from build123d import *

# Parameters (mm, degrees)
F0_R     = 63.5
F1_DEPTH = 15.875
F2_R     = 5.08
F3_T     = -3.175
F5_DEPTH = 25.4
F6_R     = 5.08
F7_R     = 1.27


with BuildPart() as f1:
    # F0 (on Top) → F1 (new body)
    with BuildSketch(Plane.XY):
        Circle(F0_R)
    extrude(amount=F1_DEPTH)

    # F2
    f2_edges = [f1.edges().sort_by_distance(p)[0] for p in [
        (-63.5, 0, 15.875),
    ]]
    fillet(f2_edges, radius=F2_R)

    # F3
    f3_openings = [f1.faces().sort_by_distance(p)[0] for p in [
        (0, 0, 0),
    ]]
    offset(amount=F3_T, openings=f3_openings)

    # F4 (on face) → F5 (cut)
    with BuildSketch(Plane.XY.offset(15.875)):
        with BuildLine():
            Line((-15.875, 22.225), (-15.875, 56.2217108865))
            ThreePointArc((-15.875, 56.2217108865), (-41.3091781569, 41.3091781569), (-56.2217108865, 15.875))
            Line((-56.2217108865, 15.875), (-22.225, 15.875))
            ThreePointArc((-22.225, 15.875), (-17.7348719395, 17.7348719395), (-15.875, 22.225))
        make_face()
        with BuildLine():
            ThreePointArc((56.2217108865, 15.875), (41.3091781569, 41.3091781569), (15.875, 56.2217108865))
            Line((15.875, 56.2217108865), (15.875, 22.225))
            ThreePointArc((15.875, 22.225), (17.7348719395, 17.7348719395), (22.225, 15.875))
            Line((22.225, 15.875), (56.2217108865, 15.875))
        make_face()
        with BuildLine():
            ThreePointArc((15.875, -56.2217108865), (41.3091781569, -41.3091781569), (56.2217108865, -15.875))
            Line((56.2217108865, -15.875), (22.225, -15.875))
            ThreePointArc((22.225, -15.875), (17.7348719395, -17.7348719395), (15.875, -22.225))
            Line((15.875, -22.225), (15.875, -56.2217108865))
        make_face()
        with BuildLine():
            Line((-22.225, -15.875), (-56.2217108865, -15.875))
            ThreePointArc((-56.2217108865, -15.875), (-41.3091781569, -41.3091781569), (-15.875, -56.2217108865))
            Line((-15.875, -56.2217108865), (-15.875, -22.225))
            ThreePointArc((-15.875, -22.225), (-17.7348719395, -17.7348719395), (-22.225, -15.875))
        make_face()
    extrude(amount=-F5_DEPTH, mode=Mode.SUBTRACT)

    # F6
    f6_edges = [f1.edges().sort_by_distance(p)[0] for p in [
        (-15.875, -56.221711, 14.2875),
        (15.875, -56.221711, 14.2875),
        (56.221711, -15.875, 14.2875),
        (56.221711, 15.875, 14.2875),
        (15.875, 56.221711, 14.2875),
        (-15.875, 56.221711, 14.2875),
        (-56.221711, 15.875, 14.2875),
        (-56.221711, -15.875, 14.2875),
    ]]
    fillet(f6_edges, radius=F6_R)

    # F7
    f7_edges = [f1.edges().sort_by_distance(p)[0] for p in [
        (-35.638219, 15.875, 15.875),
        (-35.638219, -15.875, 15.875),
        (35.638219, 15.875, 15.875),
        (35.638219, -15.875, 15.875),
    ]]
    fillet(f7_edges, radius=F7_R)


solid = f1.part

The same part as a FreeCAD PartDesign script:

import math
import FreeCAD as App
import Part
import Sketcher
Q = App.Units.Quantity


def edges_at(feature, points):
    """Names of the edges that pass closest to the given points."""
    edges = feature.Shape.Edges
    near = lambda p: min(range(len(edges)), key=lambda i: edges[i].distToShape(Part.Vertex(*p))[0])
    return sorted({f"Edge{near(p) + 1}" for p in points})


def faces_at(feature, points):
    """Names of the faces that lie closest to the given points."""
    faces = feature.Shape.Faces
    near = lambda p: min(range(len(faces)), key=lambda i: faces[i].distToShape(Part.Vertex(*p))[0])
    return sorted({f"Face{near(p) + 1}" for p in points})

doc = App.newDocument("Part")
body = doc.addObject("PartDesign::Body", "Body")

sketch1 = body.newObject("Sketcher::SketchObject", "Sketch")
sketch1.AttachmentSupport = (doc.getObject("XY_Plane"), [""])
sketch1.MapMode = "FlatFace"
sketch1.addGeometry(Part.Circle(App.Vector(0, 0, 0), App.Vector(0, 0, 1), 64), False)
sketch1.addConstraint([
    Sketcher.Constraint("Coincident", 0, 3, -1, 1),
    Sketcher.Constraint("Diameter", 0, Q("5 in")),
])
pad1 = body.newObject("PartDesign::Pad", "Pad")
pad1.Profile = sketch1
pad1.Length = Q("0.625 in")
doc.recompute()

fillet = body.newObject("PartDesign::Fillet", "Fillet")
fillet.Base = (pad1, edges_at(pad1, [(-63.5, 0, 15.875)]))
fillet.Radius = Q("0.2 in")
doc.recompute()

thickness = body.newObject("PartDesign::Thickness", "Thickness")
thickness.Base = (fillet, faces_at(fillet, [(0, 0, 0)]))
thickness.Value = Q("0.125 in")
thickness.Reversed = True
thickness.Join = "Arc"

sketch2 = body.newObject("Sketcher::SketchObject", "Sketch001")
sketch2.AttachmentSupport = (doc.getObject("XY_Plane"), [""])
sketch2.MapMode = "FlatFace"
sketch2.AttachmentOffset = App.Placement(App.Vector(0, 0, 0.625 * 25.4), App.Rotation())
sketch2.addGeometry([
    Part.LineSegment(App.Vector(-16, 22, 0), App.Vector(-16, 56, 0)),
    Part.ArcOfCircle(Part.Circle(App.Vector(0, 0, 0), App.Vector(0, 0, 1), 58), math.radians(106), math.radians(164)),
    Part.LineSegment(App.Vector(-56, 16, 0), App.Vector(-22, 16, 0)),
    Part.ArcOfCircle(Part.Circle(App.Vector(-22, 22, 0), App.Vector(0, 0, 1), 6), math.radians(-90), math.radians(0)),
    Part.ArcOfCircle(Part.Circle(App.Vector(0, 0, 0), App.Vector(0, 0, 1), 58), math.radians(16), math.radians(74)),
    Part.LineSegment(App.Vector(16, 56, 0), App.Vector(16, 22, 0)),
    Part.ArcOfCircle(Part.Circle(App.Vector(22, 22, 0), App.Vector(0, 0, 1), 6), math.radians(180), math.radians(270)),
    Part.LineSegment(App.Vector(22, 16, 0), App.Vector(56, 16, 0)),
    Part.ArcOfCircle(Part.Circle(App.Vector(0, 0, 0), App.Vector(0, 0, 1), 58), math.radians(-74), math.radians(-16)),
    Part.LineSegment(App.Vector(56, -16, 0), App.Vector(22, -16, 0)),
    Part.ArcOfCircle(Part.Circle(App.Vector(22, -22, 0), App.Vector(0, 0, 1), 6), math.radians(90), math.radians(180)),
    Part.LineSegment(App.Vector(16, -22, 0), App.Vector(16, -56, 0)),
    Part.LineSegment(App.Vector(-22, -16, 0), App.Vector(-56, -16, 0)),
    Part.ArcOfCircle(Part.Circle(App.Vector(0, 0, 0), App.Vector(0, 0, 1), 58), math.radians(-164), math.radians(-106)),
    Part.LineSegment(App.Vector(-16, -56, 0), App.Vector(-16, -22, 0)),
    Part.ArcOfCircle(Part.Circle(App.Vector(-22, -22, 0), App.Vector(0, 0, 1), 6), math.radians(0), math.radians(90)),
], False)
sketch2.addConstraint([
    Sketcher.Constraint("Coincident", 0, 2, 1, 1),
    Sketcher.Constraint("Coincident", 1, 2, 2, 1),
    Sketcher.Constraint("Tangent", 2, 2, 3, 1),
    Sketcher.Constraint("Tangent", 3, 2, 0, 1),
    Sketcher.Constraint("Coincident", 4, 2, 5, 1),
    Sketcher.Constraint("Tangent", 5, 2, 6, 1),
    Sketcher.Constraint("Tangent", 6, 2, 7, 1),
    Sketcher.Constraint("Coincident", 7, 2, 4, 1),
    Sketcher.Constraint("Coincident", 8, 2, 9, 1),
    Sketcher.Constraint("Tangent", 9, 2, 10, 1),
    Sketcher.Constraint("Tangent", 10, 2, 11, 1),
    Sketcher.Constraint("Coincident", 11, 2, 8, 1),
    Sketcher.Constraint("Coincident", 12, 2, 13, 1),
    Sketcher.Constraint("Coincident", 13, 2, 14, 1),
    Sketcher.Constraint("Tangent", 14, 2, 15, 1),
    Sketcher.Constraint("Tangent", 15, 2, 12, 1),
    Sketcher.Constraint("Vertical", 0),
    Sketcher.Constraint("Horizontal", 2),
    Sketcher.Constraint("Vertical", 5),
    Sketcher.Constraint("Horizontal", 7),
    Sketcher.Constraint("Horizontal", 9),
    Sketcher.Constraint("Vertical", 11),
    Sketcher.Constraint("Horizontal", 12),
    Sketcher.Constraint("Vertical", 14),
    Sketcher.Constraint("Coincident", 1, 3, -1, 1),
    Sketcher.Constraint("Coincident", 4, 3, -1, 1),
    Sketcher.Constraint("Coincident", 8, 3, -1, 1),
    Sketcher.Constraint("Coincident", 13, 3, -1, 1),
    Sketcher.Constraint("Equal", 1, 4),
    Sketcher.Constraint("Equal", 3, 6),
    Sketcher.Constraint("Equal", 4, 8),
    Sketcher.Constraint("Equal", 6, 10),
    Sketcher.Constraint("Equal", 8, 13),
    Sketcher.Constraint("Equal", 10, 15),
    Sketcher.Constraint("Symmetric", 3, 3, 10, 3, -1, 1),
    Sketcher.Constraint("Symmetric", 6, 3, 15, 3, -1, 1),
    Sketcher.Constraint("Symmetric", 3, 3, 6, 3, -2),
    Sketcher.Constraint("Equal", 12, 0),
    Sketcher.Constraint("Radius", 1, Q("2.3 in")),
    Sketcher.Constraint("Radius", 3, Q("0.25 in")),
    Sketcher.Constraint("DistanceX", 0, 2, 6, 3, Q("1.5 in")),
])
pocket1 = body.newObject("PartDesign::Pocket", "Pocket")
pocket1.Profile = sketch2
pocket1.Length = Q("1 in")
doc.recompute()

fillet2 = body.newObject("PartDesign::Fillet", "Fillet001")
fillet2.Base = (pocket1, edges_at(pocket1, [
    (-15.875, -56.222, 14.287),
    (15.875, -56.222, 14.287),
    (56.222, -15.875, 14.287),
    (56.222, 15.875, 14.287),
    (15.875, 56.222, 14.287),
    (-15.875, 56.222, 14.287),
    (-56.222, 15.875, 14.287),
    (-56.222, -15.875, 14.287),
]))
fillet2.Radius = Q("0.2 in")
doc.recompute()

fillet3 = body.newObject("PartDesign::Fillet", "Fillet002")
fillet3.Base = (fillet2, edges_at(fillet2, [
    (-35.638, 15.875, 15.875),
    (-35.638, -15.875, 15.875),
    (35.638, 15.875, 15.875),
    (35.638, -15.875, 15.875),
]))
fillet3.Radius = Q("0.05 in")

doc.recompute()
